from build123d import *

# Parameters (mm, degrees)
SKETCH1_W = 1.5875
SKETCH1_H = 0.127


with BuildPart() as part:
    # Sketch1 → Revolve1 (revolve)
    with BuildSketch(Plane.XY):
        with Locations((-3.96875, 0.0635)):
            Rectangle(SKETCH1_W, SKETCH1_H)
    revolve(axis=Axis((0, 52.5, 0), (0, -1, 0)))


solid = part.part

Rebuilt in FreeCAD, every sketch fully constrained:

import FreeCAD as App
import Part
import Sketcher

V = App.Vector
Q = App.Units.Quantity

doc = App.newDocument("Part")
body = doc.addObject("PartDesign::Body", "Body")

# Sketch on XY plane
sketch1 = body.newObject("Sketcher::SketchObject", "Sketch")
sketch1.AttachmentSupport = (doc.getObject("XY_Plane"), [""])
sketch1.MapMode = "FlatFace"
sketch1.addGeometry([
    Part.LineSegment(V(-4.76, 0.13, 0), V(-4.76, 0, 0)),
    Part.LineSegment(V(-4.76, 0, 0), V(-3.17, 0, 0)),
    Part.LineSegment(V(-3.17, 0, 0), V(-3.17, 0.13, 0)),
    Part.LineSegment(V(-3.17, 0.13, 0), V(-4.76, 0.13, 0)),
], False)
sketch1.addConstraint([
    Sketcher.Constraint("Coincident", 0, 2, 1, 1),
    Sketcher.Constraint("Coincident", 1, 2, 2, 1),
    Sketcher.Constraint("Coincident", 2, 2, 3, 1),
    Sketcher.Constraint("Coincident", 3, 2, 0, 1),
    Sketcher.Constraint("Vertical", 0),
    Sketcher.Constraint("Horizontal", 1),
    Sketcher.Constraint("Vertical", 2),
    Sketcher.Constraint("Horizontal", 3),
    Sketcher.Constraint("PointOnObject", 0, 2, -1),
    Sketcher.Constraint("DistanceX", 1, 1, 1, 2, Q("0.0625 in")),
    Sketcher.Constraint("DistanceY", 0, 2, 0, 1, Q("0.005 in")),
    Sketcher.Constraint("DistanceX", 0, 2, -1, 1, Q("0.1875 in")),
])
revolution = body.newObject("PartDesign::Revolution", "Revolution")
revolution.Profile = sketch1
revolution.ReferenceAxis = (sketch1, ["V_Axis"])
revolution.Angle = 360

doc.recompute()
